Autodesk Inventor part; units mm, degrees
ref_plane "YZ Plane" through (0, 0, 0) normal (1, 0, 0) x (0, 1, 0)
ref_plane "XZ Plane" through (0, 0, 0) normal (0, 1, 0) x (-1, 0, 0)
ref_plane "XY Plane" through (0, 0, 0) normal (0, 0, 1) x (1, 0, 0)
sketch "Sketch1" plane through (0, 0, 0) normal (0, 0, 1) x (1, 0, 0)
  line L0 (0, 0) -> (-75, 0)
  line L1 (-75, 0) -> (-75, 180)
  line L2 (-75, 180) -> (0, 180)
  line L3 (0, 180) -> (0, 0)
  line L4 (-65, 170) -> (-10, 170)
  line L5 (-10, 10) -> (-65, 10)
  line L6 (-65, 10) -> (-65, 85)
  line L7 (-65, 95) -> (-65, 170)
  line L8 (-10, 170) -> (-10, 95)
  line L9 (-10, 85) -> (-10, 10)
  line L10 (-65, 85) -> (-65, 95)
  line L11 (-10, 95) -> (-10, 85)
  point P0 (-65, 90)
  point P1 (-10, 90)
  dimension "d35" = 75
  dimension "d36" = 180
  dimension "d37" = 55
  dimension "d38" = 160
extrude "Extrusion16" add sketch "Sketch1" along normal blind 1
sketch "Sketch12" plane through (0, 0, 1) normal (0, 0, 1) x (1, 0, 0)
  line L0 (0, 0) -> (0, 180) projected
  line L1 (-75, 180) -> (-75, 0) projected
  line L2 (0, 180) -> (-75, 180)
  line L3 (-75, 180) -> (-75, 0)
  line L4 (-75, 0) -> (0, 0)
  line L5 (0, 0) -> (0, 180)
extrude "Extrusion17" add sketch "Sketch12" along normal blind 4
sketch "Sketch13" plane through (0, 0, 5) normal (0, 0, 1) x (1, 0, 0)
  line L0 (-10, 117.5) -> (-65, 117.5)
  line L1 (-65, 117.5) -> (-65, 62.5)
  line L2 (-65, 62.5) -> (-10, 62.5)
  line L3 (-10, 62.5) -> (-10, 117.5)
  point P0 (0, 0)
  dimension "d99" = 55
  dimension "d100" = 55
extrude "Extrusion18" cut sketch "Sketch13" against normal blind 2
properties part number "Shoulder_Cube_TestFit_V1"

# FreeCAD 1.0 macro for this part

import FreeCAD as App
import Part
import Sketcher
Q = App.Units.Quantity

doc = App.newDocument("Part")
params = doc.addObject("Spreadsheet::Sheet", "Params")
for row, (alias, value) in enumerate([
    ("sketch1_width", "75 mm"),
    ("sketch1_width2", "55 mm"),
    ("sketch1_height", "180 mm"),
    ("sketch1_height2", "160 mm"),
    ("pad1_length", "1 mm"),
    ("sketch2_width", "75 mm"),
    ("sketch2_height", "180 mm"),
    ("pad2_length", "4 mm"),
    ("sketch3_width", "55 mm"),
    ("pocket1_length", "2 mm"),
], start=1):
    params.set(f"A{row}", alias)
    params.set(f"B{row}", "=" + value)
    params.setAlias(f"B{row}", alias)

body = doc.addObject("PartDesign::Body", "Body")

# Sketch on XY plane
sketch1 = body.newObject("Sketcher::SketchObject", "Sketch")
sketch1.AttachmentSupport = (doc.getObject("XY_Plane"), [""])
sketch1.MapMode = "FlatFace"
sketch1.addGeometry([
    Part.LineSegment(App.Vector(-75, 0, 0), App.Vector(0, 0, 0)),  # 0
    Part.LineSegment(App.Vector(0, 0, 0), App.Vector(0, 180, 0)),  # 1
    Part.LineSegment(App.Vector(0, 180, 0), App.Vector(-75, 180, 0)),  # 2
    Part.LineSegment(App.Vector(-75, 180, 0), App.Vector(-75, 0, 0)),  # 3
    Part.LineSegment(App.Vector(-65, 10, 0), App.Vector(-65, 170, 0)),  # 4
    Part.LineSegment(App.Vector(-65, 170, 0), App.Vector(-10, 170, 0)),  # 5
    Part.LineSegment(App.Vector(-10, 170, 0), App.Vector(-10, 10, 0)),  # 6
    Part.LineSegment(App.Vector(-10, 10, 0), App.Vector(-65, 10, 0)),  # 7
], False)
sketch1.addConstraint([
    Sketcher.Constraint("Coincident", 0, 2, 1, 1),
    Sketcher.Constraint("Coincident", 1, 2, 2, 1),
    Sketcher.Constraint("Coincident", 2, 2, 3, 1),
    Sketcher.Constraint("Coincident", 3, 2, 0, 1),
    Sketcher.Constraint("Coincident", 4, 2, 5, 1),
    Sketcher.Constraint("Coincident", 5, 2, 6, 1),
    Sketcher.Constraint("Coincident", 6, 2, 7, 1),
    Sketcher.Constraint("Coincident", 7, 2, 4, 1),
    Sketcher.Constraint("Horizontal", 0),
    Sketcher.Constraint("Vertical", 1),
    Sketcher.Constraint("Horizontal", 2),
    Sketcher.Constraint("Vertical", 3),
    Sketcher.Constraint("Vertical", 4),
    Sketcher.Constraint("Horizontal", 5),
    Sketcher.Constraint("Vertical", 6),
    Sketcher.Constraint("Horizontal", 7),
    Sketcher.Constraint("Coincident", 0, 2, -1, 1),
    Sketcher.Constraint("DistanceX", 0, 1, 0, 2, Q("75 mm")),
    Sketcher.Constraint("DistanceX", 5, 1, 5, 2, Q("55 mm")),
    Sketcher.Constraint("DistanceY", 1, 1, 1, 2, Q("180 mm")),
    Sketcher.Constraint("DistanceY", 4, 1, 4, 2, Q("160 mm")),
    Sketcher.Constraint("DistanceX", 4, 2, -1, 1, Q("65 mm")),
    Sketcher.Constraint("DistanceY", -1, 1, 4, 2, Q("170 mm")),
])
sketch1.setExpression("Constraints[17]", "Params.sketch1_width")
sketch1.setExpression("Constraints[18]", "Params.sketch1_width2")
sketch1.setExpression("Constraints[19]", "Params.sketch1_height")
sketch1.setExpression("Constraints[20]", "Params.sketch1_height2")
pad1 = body.newObject("PartDesign::Pad", "Pad")
pad1.Profile = sketch1
pad1.setExpression("Length", "Params.pad1_length")

# Sketch on XY plane
sketch2 = body.newObject("Sketcher::SketchObject", "Sketch001")
sketch2.AttachmentSupport = (doc.getObject("XY_Plane"), [""])
sketch2.MapMode = "FlatFace"
sketch2.AttachmentOffset = App.Placement(App.Vector(0, 0, 1), App.Rotation())
sketch2.addGeometry([
    Part.LineSegment(App.Vector(-75, 0, 0), App.Vector(0, 0, 0)),
    Part.LineSegment(App.Vector(0, 0, 0), App.Vector(0, 180, 0)),
    Part.LineSegment(App.Vector(0, 180, 0), App.Vector(-75, 180, 0)),
    Part.LineSegment(App.Vector(-75, 180, 0), App.Vector(-75, 0, 0)),
], False)
sketch2.addConstraint([
    Sketcher.Constraint("Coincident", 0, 2, 1, 1),
    Sketcher.Constraint("Coincident", 1, 2, 2, 1),
    Sketcher.Constraint("Coincident", 2, 2, 3, 1),
    Sketcher.Constraint("Coincident", 3, 2, 0, 1),
    Sketcher.Constraint("Horizontal", 0),
    Sketcher.Constraint("Vertical", 1),
    Sketcher.Constraint("Horizontal", 2),
    Sketcher.Constraint("Vertical", 3),
    Sketcher.Constraint("Coincident", 0, 2, -1, 1),
    Sketcher.Constraint("DistanceX", 0, 1, 0, 2, Q("75 mm")),
    Sketcher.Constraint("DistanceY", 1, 1, 1, 2, Q("180 mm")),
])
sketch2.setExpression("Constraints[9]", "Params.sketch2_width")
sketch2.setExpression("Constraints[10]", "Params.sketch2_height")
pad2 = body.newObject("PartDesign::Pad", "Pad001")
pad2.Profile = sketch2
pad2.setExpression("Length", "Params.pad2_length")

# Sketch on XY plane
sketch3 = body.newObject("Sketcher::SketchObject", "Sketch002")
sketch3.AttachmentSupport = (doc.getObject("XY_Plane"), [""])
sketch3.MapMode = "FlatFace"
sketch3.AttachmentOffset = App.Placement(App.Vector(0, 0, 5), App.Rotation())
sketch3.addGeometry([
    Part.LineSegment(App.Vector(-10, 62, 0), App.Vector(-10, 118, 0)),
    Part.LineSegment(App.Vector(-10, 118, 0), App.Vector(-65, 118, 0)),
    Part.LineSegment(App.Vector(-65, 118, 0), App.Vector(-65, 62, 0)),
    Part.LineSegment(App.Vector(-65, 62, 0), App.Vector(-10, 62, 0)),
], False)
sketch3.addConstraint([
    Sketcher.Constraint("Coincident", 0, 2, 1, 1),
    Sketcher.Constraint("Coincident", 1, 2, 2, 1),
    Sketcher.Constraint("Coincident", 2, 2, 3, 1),
    Sketcher.Constraint("Coincident", 3, 2, 0, 1),
    Sketcher.Constraint("Vertical", 0),
    Sketcher.Constraint("Horizontal", 1),
    Sketcher.Constraint("Vertical", 2),
    Sketcher.Constraint("Horizontal", 3),
    Sketcher.Constraint("Equal", 3, 0),
    Sketcher.Constraint("DistanceX", 1, 2, 1, 1, Q("55 mm")),
    Sketcher.Constraint("DistanceX", 0, 2, -1, 1, Q("10 mm")),
    Sketcher.Constraint("DistanceY", -1, 1, 0, 2, Q("117.5 mm")),
])
sketch3.setExpression("Constraints[9]", "Params.sketch3_width")
pocket1 = body.newObject("PartDesign::Pocket", "Pocket")
pocket1.Profile = sketch3
pocket1.setExpression("Length", "Params.pocket1_length")

doc.recompute()
